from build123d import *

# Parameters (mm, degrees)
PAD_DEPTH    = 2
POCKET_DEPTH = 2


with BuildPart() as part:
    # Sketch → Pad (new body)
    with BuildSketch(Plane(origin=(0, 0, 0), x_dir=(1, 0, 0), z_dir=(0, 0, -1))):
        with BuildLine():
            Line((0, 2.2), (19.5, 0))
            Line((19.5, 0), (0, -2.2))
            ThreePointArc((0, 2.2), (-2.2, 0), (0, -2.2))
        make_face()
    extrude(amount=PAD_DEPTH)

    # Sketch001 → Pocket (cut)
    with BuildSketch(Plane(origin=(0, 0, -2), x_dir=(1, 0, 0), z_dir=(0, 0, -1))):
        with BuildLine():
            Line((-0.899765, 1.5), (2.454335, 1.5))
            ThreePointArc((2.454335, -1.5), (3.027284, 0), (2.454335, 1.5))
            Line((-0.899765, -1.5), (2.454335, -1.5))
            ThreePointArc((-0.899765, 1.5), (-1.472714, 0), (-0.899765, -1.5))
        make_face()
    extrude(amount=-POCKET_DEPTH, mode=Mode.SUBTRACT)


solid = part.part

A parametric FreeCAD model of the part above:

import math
import FreeCAD as App
import Part
import Sketcher

V = App.Vector

doc = App.newDocument("Part")
body = doc.addObject("PartDesign::Body", "Body")

# Sketch on XY plane
sketch1 = body.newObject("Sketcher::SketchObject", "Sketch")
sketch1.AttachmentSupport = (doc.getObject("XY_Plane"), [""])
sketch1.MapMode = "FlatFace"
sketch1.addGeometry(Part.LineSegment(V(19.5, 0, 0), V(0, -2.2, 0)), False)
sketch1.addGeometry(Part.ArcOfCircle(Part.Circle(V(0, 0, 0), V(0, 0, 1), 2.2), math.radians(90), math.radians(270)), False)
sketch1.addGeometry(Part.LineSegment(V(0, 2.2, 0), V(19.5, 0, 0)), False)
sketch1.addConstraint(Sketcher.Constraint("Coincident", 0, 2, 1, 2))
sketch1.addConstraint(Sketcher.Constraint("Coincident", 1, 1, 2, 1))
sketch1.addConstraint(Sketcher.Constraint("Coincident", 2, 2, 0, 1))
sketch1.addConstraint(Sketcher.Constraint("Coincident", 1, 3, -1, 1))
sketch1.addConstraint(Sketcher.Constraint("PointOnObject", 0, 2, -2))
sketch1.addConstraint(Sketcher.Constraint("PointOnObject", 1, 1, -2))
sketch1.addConstraint(Sketcher.Constraint("PointOnObject", 2, 2, -1))
sketch1.addConstraint(Sketcher.Constraint("Radius", 1, 2.2))
sketch1.addConstraint(Sketcher.Constraint("DistanceX", -1, 1, 2, 2, 19.5))
pad1 = body.newObject("PartDesign::Pad", "Pad")
pad1.Profile = sketch1
pad1.Length = 2
pad1.Reversed = True

# Sketch on XY plane
sketch2 = body.newObject("Sketcher::SketchObject", "Sketch001")
sketch2.AttachmentSupport = (doc.getObject("XY_Plane"), [""])
sketch2.MapMode = "FlatFace"
sketch2.AttachmentOffset = App.Placement(V(0, 0, -2), App.Rotation())
sketch2.addGeometry(Part.LineSegment(V(2.454335, -1.5, 0), V(-0.899765, -1.5, 0)), False)
sketch2.addGeometry(Part.ArcOfCircle(Part.Circle(V(0.777286, 0, 0), V(0, 0, 1), 2.25), math.radians(138.189686), math.radians(221.810314)), False)
sketch2.addGeometry(Part.LineSegment(V(-0.899765, 1.5, 0), V(2.454335, 1.5, 0)), False)
sketch2.addGeometry(Part.ArcOfCircle(Part.Circle(V(0.777284, 0, 0), V(0, 0, 1), 2.25), math.radians(-41.810314), math.radians(41.810314)), False)
sketch2.addConstraint(Sketcher.Constraint("Coincident", 0, 2, 1, 2))
sketch2.addConstraint(Sketcher.Constraint("Coincident", 1, 1, 2, 1))
sketch2.addConstraint(Sketcher.Constraint("Coincident", 2, 2, 3, 2))
sketch2.addConstraint(Sketcher.Constraint("Coincident", 3, 1, 0, 1))
sketch2.addConstraint(Sketcher.Constraint("Horizontal", 0))
sketch2.addConstraint(Sketcher.Constraint("Horizontal", 2))
sketch2.addConstraint(Sketcher.Constraint("Coincident", 3, 3, 1, 3))
sketch2.addConstraint(Sketcher.Constraint("Equal", 1, 3))
sketch2.addConstraint(Sketcher.Constraint("Symmetric", 0, 2, 1, 1, -1))
sketch2.addConstraint(Sketcher.Constraint("Radius", 1, 2.25))
sketch2.addConstraint(Sketcher.Constraint("DistanceY", 0, 2, 1, 1, 3.0))
sketch2.addConstraint(Sketcher.Constraint("DistanceX", -1, 1, 1, 3, 0.777286))
pocket1 = body.newObject("PartDesign::Pocket", "Pocket")
pocket1.Profile = sketch2
pocket1.Length = 2
pocket1.Reversed = True

doc.recompute()
